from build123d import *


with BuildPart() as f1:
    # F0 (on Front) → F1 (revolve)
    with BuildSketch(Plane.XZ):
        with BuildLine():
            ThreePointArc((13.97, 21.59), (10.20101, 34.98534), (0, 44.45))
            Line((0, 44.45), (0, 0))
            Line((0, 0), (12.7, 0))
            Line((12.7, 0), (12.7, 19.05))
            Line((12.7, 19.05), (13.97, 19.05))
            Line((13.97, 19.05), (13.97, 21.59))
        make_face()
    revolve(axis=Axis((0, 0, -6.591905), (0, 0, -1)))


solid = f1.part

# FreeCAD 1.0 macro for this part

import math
import FreeCAD as App
import Part
import Sketcher
from FreeCAD import Vector
Q = App.Units.Quantity

doc = App.newDocument("Part")
params = doc.addObject("Spreadsheet::Sheet", "Params")
for row, (alias, value) in enumerate([
    ("sketch1_width", "0.5 in"),
    ("sketch1_height", "0.1 in"),
    ("sketch1_width2", "0.05 in"),
    ("sketch1_height2", "1.75 in"),
    ("revolution_angle", "360 deg"),
], start=1):
    params.set(f"A{row}", alias)
    params.set(f"B{row}", "=" + value)
    params.setAlias(f"B{row}", alias)

body = doc.addObject("PartDesign::Body", "Body")

# Sketch on XZ plane
sketch1 = body.newObject("Sketcher::SketchObject", "Sketch")
sketch1.AttachmentSupport = (doc.getObject("XZ_Plane"), [""])
sketch1.MapMode = "FlatFace"
sketch1.addGeometry(Part.ArcOfCircle(Part.Circle(Vector(-11.7, 21.6, 0), Vector(0, 0, 1), 25.7), math.radians(0), math.radians(63)), False)
sketch1.addGeometry(Part.LineSegment(Vector(0, 44.5, 0), Vector(0, 0, 0)), False)
sketch1.addGeometry(Part.LineSegment(Vector(0, 0, 0), Vector(12.7, 0, 0)), False)
sketch1.addGeometry(Part.LineSegment(Vector(12.7, 0, 0), Vector(12.7, 19.1, 0)), False)
sketch1.addGeometry(Part.LineSegment(Vector(12.7, 19.1, 0), Vector(14, 19.1, 0)), False)
sketch1.addGeometry(Part.LineSegment(Vector(14, 19.1, 0), Vector(14, 21.6, 0)), False)
sketch1.addConstraint(Sketcher.Constraint("Coincident", 0, 2, 1, 1))
sketch1.addConstraint(Sketcher.Constraint("Coincident", 1, 2, 2, 1))
sketch1.addConstraint(Sketcher.Constraint("Coincident", 2, 2, 3, 1))
sketch1.addConstraint(Sketcher.Constraint("Coincident", 3, 2, 4, 1))
sketch1.addConstraint(Sketcher.Constraint("Coincident", 4, 2, 5, 1))
sketch1.addConstraint(Sketcher.Constraint("Tangent", 5, 2, 0, 1))
sketch1.addConstraint(Sketcher.Constraint("Vertical", 1))
sketch1.addConstraint(Sketcher.Constraint("Horizontal", 2))
sketch1.addConstraint(Sketcher.Constraint("Vertical", 3))
sketch1.addConstraint(Sketcher.Constraint("Horizontal", 4))
sketch1.addConstraint(Sketcher.Constraint("Vertical", 5))
sketch1.addConstraint(Sketcher.Constraint("Coincident", 1, 2, -1, 1))
sketch1.addConstraint(Sketcher.Constraint("DistanceX", 2, 1, 2, 2, Q("0.5 in")))
sketch1.addConstraint(Sketcher.Constraint("DistanceY", 5, 1, 5, 2, Q("0.1 in")))
sketch1.addConstraint(Sketcher.Constraint("DistanceY", 3, 2, 0, 2, Q("1 in")))
sketch1.addConstraint(Sketcher.Constraint("DistanceX", 4, 1, 4, 2, Q("0.05 in")))
sketch1.addConstraint(Sketcher.Constraint("DistanceY", 1, 2, 1, 1, Q("1.75 in")))
sketch1.setExpression("Constraints[12]", "Params.sketch1_width")
sketch1.setExpression("Constraints[13]", "Params.sketch1_height")
sketch1.setExpression("Constraints[15]", "Params.sketch1_width2")
sketch1.setExpression("Constraints[16]", "Params.sketch1_height2")
revolution = body.newObject("PartDesign::Revolution", "Revolution")
revolution.Profile = sketch1
revolution.ReferenceAxis = (sketch1, ["V_Axis"])
revolution.setExpression("Angle", "Params.revolution_angle")

doc.recompute()
